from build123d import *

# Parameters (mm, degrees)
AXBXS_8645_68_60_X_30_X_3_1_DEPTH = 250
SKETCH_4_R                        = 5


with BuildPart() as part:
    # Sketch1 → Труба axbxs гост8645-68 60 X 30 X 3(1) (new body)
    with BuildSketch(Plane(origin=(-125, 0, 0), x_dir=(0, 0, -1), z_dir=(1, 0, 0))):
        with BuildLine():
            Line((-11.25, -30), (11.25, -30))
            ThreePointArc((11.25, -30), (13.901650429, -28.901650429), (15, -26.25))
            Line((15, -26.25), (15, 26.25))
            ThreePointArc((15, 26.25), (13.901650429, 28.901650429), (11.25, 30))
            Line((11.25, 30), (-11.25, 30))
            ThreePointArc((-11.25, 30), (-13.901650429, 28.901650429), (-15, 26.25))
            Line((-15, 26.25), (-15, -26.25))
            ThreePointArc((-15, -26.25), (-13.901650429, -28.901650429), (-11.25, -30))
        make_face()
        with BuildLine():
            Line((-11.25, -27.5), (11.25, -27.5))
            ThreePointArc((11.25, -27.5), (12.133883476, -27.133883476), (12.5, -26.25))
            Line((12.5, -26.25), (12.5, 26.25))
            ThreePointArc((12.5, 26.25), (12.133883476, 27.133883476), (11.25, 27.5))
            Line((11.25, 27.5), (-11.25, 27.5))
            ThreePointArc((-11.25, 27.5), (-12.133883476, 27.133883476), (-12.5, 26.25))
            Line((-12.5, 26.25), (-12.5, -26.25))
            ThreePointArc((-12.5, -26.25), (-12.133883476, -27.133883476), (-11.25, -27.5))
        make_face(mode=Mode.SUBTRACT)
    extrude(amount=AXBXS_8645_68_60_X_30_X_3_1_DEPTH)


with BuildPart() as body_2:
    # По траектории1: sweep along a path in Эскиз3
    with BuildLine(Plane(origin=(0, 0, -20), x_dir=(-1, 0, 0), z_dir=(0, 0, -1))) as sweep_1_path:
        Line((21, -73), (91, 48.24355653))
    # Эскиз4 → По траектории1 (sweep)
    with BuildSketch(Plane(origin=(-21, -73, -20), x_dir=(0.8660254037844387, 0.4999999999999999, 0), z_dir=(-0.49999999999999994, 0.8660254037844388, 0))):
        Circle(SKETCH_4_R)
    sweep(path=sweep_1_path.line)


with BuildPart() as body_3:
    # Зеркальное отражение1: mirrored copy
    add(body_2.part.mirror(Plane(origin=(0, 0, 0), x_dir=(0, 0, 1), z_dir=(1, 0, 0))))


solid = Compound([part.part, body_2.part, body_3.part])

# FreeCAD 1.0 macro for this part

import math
import FreeCAD as App
import Part
import Sketcher

V = App.Vector

doc = App.newDocument("Part")
body = doc.addObject("PartDesign::Body", "Body")

# Sketch on YZ plane
sketch1 = body.newObject("Sketcher::SketchObject", "Sketch")
sketch1.AttachmentSupport = (doc.getObject("YZ_Plane"), [""])
sketch1.MapMode = "FlatFace"
sketch1.AttachmentOffset = App.Placement(V(0, 0, -125), App.Rotation())
sketch1.addGeometry([
    Part.LineSegment(V(-30, 11.2, 0), V(-30, -11.2, 0)),  # 0
    Part.ArcOfCircle(Part.Circle(V(-26.2, -11.2, 0), V(0, 0, 1), 3.8), math.radians(-180), math.radians(-90)),  # 1
    Part.LineSegment(V(-26.2, -15, 0), V(26.2, -15, 0)),  # 2
    Part.ArcOfCircle(Part.Circle(V(26.2, -11.2, 0), V(0, 0, 1), 3.8), math.radians(-90), math.radians(0)),  # 3
    Part.LineSegment(V(30, -11.2, 0), V(30, 11.2, 0)),  # 4
    Part.ArcOfCircle(Part.Circle(V(26.2, 11.2, 0), V(0, 0, 1), 3.8), math.radians(0), math.radians(90)),  # 5
    Part.LineSegment(V(26.2, 15, 0), V(-26.2, 15, 0)),  # 6
    Part.ArcOfCircle(Part.Circle(V(-26.2, 11.2, 0), V(0, 0, 1), 3.8), math.radians(90), math.radians(180)),  # 7
    Part.LineSegment(V(-27.5, -11.2, 0), V(-27.5, 11.2, 0)),  # 8
    Part.ArcOfCircle(Part.Circle(V(-26.2, 11.2, 0), V(0, 0, 1), 1.3), math.radians(90), math.radians(180)),  # 9
    Part.LineSegment(V(-26.2, 12.5, 0), V(26.2, 12.5, 0)),  # 10
    Part.ArcOfCircle(Part.Circle(V(26.2, 11.2, 0), V(0, 0, 1), 1.3), math.radians(0), math.radians(90)),  # 11
    Part.LineSegment(V(27.5, 11.2, 0), V(27.5, -11.2, 0)),  # 12
    Part.ArcOfCircle(Part.Circle(V(26.2, -11.2, 0), V(0, 0, 1), 1.3), math.radians(-90), math.radians(0)),  # 13
    Part.LineSegment(V(26.2, -12.5, 0), V(-26.2, -12.5, 0)),  # 14
    Part.ArcOfCircle(Part.Circle(V(-26.2, -11.2, 0), V(0, 0, 1), 1.3), math.radians(-180), math.radians(-90)),  # 15
], False)
sketch1.addConstraint([
    Sketcher.Constraint("Tangent", 0, 2, 1, 1),
    Sketcher.Constraint("Tangent", 1, 2, 2, 1),
    Sketcher.Constraint("Tangent", 2, 2, 3, 1),
    Sketcher.Constraint("Tangent", 3, 2, 4, 1),
    Sketcher.Constraint("Tangent", 4, 2, 5, 1),
    Sketcher.Constraint("Tangent", 5, 2, 6, 1),
    Sketcher.Constraint("Tangent", 6, 2, 7, 1),
    Sketcher.Constraint("Tangent", 7, 2, 0, 1),
    Sketcher.Constraint("Tangent", 8, 2, 9, 2),
    Sketcher.Constraint("Tangent", 9, 1, 10, 1),
    Sketcher.Constraint("Tangent", 10, 2, 11, 2),
    Sketcher.Constraint("Tangent", 11, 1, 12, 1),
    Sketcher.Constraint("Tangent", 12, 2, 13, 2),
    Sketcher.Constraint("Tangent", 13, 1, 14, 1),
    Sketcher.Constraint("Tangent", 14, 2, 15, 2),
    Sketcher.Constraint("Tangent", 15, 1, 8, 1),
    Sketcher.Constraint("Vertical", 0),
    Sketcher.Constraint("Horizontal", 2),
    Sketcher.Constraint("Vertical", 4),
    Sketcher.Constraint("Horizontal", 6),
    Sketcher.Constraint("Vertical", 8),
    Sketcher.Constraint("Horizontal", 10),
    Sketcher.Constraint("Vertical", 12),
    Sketcher.Constraint("Horizontal", 14),
    Sketcher.Constraint("Coincident", 9, 3, 7, 3),
    Sketcher.Constraint("Coincident", 11, 3, 5, 3),
    Sketcher.Constraint("Coincident", 13, 3, 3, 3),
    Sketcher.Constraint("Equal", 1, 3),
    Sketcher.Constraint("Equal", 3, 5),
    Sketcher.Constraint("Equal", 5, 7),
    Sketcher.Constraint("Equal", 13, 15),
    Sketcher.Constraint("Symmetric", 1, 3, 5, 3, -1, 1),
    Sketcher.Constraint("Radius", 1, 3.75),
    Sketcher.Constraint("Radius", 9, 1.25),
    Sketcher.Constraint("DistanceX", 2, 1, 2, 2, 52.5),
    Sketcher.Constraint("DistanceY", 0, 2, 0, 1, 22.5),
])
pad1 = body.newObject("PartDesign::Pad", "Pad")
pad1.Profile = sketch1
pad1.Length = 250
body2 = doc.addObject("PartDesign::Body", "Body001")

# Sketch on an angled plane
sketch2 = body2.newObject("Sketcher::SketchObject", "Sketch001")
sketch2.Placement = App.Placement(V(-21, -73, -20), App.Rotation(V(0.866025404, 0.5, 0), V(0, 0, -1), V(-0.5, 0.866025404, 0), "ZXY"))
sketch2.addGeometry(Part.Circle(V(0, 0, 0), V(0, 0, 1), 5), False)
sketch2.addConstraint([
    Sketcher.Constraint("Coincident", 0, 3, -1, 1),
    Sketcher.Constraint("Diameter", 0, 10.0),
])

# Sketch on an angled plane
sketch3 = body2.newObject("Sketcher::SketchObject", "Sketch002")
sketch3.Placement = App.Placement(V(-47.359927, -27.343267, 0), App.Rotation(V(-0.5, 0.866025404, 0), V(0, 0, 1), V(0.866025404, 0.5, 0), "ZXY"))
sketch3.addGeometry(Part.LineSegment(V(-53, -20, 0), V(87, -20, 0)), False)
sketch3.addConstraint([
    Sketcher.Constraint("Horizontal", 0),
    Sketcher.Constraint("DistanceX", 0, 1, 0, 2, 140.0),
    Sketcher.Constraint("DistanceY", 0, 1, -1, 1, 20.0),
    Sketcher.Constraint("DistanceX", 0, 1, -1, 1, 52.719854),
])
doc.recompute()

additivepipe = body2.newObject("PartDesign::AdditivePipe", "AdditivePipe")
additivepipe.Profile = sketch2
additivepipe.Spine = (sketch3, ["Edge1"])
body3 = doc.addObject("PartDesign::Body", "Body002")
doc.recompute()

mirroring = doc.addObject("Part::Mirroring", "Mirroring")
mirroring.Source = body2
mirroring.Base = V(0, 0, 0)
mirroring.Normal = V(1, 0, 0)
body3.BaseFeature = mirroring
doc.recompute()
mirroring.Visibility = False

doc.recompute()
